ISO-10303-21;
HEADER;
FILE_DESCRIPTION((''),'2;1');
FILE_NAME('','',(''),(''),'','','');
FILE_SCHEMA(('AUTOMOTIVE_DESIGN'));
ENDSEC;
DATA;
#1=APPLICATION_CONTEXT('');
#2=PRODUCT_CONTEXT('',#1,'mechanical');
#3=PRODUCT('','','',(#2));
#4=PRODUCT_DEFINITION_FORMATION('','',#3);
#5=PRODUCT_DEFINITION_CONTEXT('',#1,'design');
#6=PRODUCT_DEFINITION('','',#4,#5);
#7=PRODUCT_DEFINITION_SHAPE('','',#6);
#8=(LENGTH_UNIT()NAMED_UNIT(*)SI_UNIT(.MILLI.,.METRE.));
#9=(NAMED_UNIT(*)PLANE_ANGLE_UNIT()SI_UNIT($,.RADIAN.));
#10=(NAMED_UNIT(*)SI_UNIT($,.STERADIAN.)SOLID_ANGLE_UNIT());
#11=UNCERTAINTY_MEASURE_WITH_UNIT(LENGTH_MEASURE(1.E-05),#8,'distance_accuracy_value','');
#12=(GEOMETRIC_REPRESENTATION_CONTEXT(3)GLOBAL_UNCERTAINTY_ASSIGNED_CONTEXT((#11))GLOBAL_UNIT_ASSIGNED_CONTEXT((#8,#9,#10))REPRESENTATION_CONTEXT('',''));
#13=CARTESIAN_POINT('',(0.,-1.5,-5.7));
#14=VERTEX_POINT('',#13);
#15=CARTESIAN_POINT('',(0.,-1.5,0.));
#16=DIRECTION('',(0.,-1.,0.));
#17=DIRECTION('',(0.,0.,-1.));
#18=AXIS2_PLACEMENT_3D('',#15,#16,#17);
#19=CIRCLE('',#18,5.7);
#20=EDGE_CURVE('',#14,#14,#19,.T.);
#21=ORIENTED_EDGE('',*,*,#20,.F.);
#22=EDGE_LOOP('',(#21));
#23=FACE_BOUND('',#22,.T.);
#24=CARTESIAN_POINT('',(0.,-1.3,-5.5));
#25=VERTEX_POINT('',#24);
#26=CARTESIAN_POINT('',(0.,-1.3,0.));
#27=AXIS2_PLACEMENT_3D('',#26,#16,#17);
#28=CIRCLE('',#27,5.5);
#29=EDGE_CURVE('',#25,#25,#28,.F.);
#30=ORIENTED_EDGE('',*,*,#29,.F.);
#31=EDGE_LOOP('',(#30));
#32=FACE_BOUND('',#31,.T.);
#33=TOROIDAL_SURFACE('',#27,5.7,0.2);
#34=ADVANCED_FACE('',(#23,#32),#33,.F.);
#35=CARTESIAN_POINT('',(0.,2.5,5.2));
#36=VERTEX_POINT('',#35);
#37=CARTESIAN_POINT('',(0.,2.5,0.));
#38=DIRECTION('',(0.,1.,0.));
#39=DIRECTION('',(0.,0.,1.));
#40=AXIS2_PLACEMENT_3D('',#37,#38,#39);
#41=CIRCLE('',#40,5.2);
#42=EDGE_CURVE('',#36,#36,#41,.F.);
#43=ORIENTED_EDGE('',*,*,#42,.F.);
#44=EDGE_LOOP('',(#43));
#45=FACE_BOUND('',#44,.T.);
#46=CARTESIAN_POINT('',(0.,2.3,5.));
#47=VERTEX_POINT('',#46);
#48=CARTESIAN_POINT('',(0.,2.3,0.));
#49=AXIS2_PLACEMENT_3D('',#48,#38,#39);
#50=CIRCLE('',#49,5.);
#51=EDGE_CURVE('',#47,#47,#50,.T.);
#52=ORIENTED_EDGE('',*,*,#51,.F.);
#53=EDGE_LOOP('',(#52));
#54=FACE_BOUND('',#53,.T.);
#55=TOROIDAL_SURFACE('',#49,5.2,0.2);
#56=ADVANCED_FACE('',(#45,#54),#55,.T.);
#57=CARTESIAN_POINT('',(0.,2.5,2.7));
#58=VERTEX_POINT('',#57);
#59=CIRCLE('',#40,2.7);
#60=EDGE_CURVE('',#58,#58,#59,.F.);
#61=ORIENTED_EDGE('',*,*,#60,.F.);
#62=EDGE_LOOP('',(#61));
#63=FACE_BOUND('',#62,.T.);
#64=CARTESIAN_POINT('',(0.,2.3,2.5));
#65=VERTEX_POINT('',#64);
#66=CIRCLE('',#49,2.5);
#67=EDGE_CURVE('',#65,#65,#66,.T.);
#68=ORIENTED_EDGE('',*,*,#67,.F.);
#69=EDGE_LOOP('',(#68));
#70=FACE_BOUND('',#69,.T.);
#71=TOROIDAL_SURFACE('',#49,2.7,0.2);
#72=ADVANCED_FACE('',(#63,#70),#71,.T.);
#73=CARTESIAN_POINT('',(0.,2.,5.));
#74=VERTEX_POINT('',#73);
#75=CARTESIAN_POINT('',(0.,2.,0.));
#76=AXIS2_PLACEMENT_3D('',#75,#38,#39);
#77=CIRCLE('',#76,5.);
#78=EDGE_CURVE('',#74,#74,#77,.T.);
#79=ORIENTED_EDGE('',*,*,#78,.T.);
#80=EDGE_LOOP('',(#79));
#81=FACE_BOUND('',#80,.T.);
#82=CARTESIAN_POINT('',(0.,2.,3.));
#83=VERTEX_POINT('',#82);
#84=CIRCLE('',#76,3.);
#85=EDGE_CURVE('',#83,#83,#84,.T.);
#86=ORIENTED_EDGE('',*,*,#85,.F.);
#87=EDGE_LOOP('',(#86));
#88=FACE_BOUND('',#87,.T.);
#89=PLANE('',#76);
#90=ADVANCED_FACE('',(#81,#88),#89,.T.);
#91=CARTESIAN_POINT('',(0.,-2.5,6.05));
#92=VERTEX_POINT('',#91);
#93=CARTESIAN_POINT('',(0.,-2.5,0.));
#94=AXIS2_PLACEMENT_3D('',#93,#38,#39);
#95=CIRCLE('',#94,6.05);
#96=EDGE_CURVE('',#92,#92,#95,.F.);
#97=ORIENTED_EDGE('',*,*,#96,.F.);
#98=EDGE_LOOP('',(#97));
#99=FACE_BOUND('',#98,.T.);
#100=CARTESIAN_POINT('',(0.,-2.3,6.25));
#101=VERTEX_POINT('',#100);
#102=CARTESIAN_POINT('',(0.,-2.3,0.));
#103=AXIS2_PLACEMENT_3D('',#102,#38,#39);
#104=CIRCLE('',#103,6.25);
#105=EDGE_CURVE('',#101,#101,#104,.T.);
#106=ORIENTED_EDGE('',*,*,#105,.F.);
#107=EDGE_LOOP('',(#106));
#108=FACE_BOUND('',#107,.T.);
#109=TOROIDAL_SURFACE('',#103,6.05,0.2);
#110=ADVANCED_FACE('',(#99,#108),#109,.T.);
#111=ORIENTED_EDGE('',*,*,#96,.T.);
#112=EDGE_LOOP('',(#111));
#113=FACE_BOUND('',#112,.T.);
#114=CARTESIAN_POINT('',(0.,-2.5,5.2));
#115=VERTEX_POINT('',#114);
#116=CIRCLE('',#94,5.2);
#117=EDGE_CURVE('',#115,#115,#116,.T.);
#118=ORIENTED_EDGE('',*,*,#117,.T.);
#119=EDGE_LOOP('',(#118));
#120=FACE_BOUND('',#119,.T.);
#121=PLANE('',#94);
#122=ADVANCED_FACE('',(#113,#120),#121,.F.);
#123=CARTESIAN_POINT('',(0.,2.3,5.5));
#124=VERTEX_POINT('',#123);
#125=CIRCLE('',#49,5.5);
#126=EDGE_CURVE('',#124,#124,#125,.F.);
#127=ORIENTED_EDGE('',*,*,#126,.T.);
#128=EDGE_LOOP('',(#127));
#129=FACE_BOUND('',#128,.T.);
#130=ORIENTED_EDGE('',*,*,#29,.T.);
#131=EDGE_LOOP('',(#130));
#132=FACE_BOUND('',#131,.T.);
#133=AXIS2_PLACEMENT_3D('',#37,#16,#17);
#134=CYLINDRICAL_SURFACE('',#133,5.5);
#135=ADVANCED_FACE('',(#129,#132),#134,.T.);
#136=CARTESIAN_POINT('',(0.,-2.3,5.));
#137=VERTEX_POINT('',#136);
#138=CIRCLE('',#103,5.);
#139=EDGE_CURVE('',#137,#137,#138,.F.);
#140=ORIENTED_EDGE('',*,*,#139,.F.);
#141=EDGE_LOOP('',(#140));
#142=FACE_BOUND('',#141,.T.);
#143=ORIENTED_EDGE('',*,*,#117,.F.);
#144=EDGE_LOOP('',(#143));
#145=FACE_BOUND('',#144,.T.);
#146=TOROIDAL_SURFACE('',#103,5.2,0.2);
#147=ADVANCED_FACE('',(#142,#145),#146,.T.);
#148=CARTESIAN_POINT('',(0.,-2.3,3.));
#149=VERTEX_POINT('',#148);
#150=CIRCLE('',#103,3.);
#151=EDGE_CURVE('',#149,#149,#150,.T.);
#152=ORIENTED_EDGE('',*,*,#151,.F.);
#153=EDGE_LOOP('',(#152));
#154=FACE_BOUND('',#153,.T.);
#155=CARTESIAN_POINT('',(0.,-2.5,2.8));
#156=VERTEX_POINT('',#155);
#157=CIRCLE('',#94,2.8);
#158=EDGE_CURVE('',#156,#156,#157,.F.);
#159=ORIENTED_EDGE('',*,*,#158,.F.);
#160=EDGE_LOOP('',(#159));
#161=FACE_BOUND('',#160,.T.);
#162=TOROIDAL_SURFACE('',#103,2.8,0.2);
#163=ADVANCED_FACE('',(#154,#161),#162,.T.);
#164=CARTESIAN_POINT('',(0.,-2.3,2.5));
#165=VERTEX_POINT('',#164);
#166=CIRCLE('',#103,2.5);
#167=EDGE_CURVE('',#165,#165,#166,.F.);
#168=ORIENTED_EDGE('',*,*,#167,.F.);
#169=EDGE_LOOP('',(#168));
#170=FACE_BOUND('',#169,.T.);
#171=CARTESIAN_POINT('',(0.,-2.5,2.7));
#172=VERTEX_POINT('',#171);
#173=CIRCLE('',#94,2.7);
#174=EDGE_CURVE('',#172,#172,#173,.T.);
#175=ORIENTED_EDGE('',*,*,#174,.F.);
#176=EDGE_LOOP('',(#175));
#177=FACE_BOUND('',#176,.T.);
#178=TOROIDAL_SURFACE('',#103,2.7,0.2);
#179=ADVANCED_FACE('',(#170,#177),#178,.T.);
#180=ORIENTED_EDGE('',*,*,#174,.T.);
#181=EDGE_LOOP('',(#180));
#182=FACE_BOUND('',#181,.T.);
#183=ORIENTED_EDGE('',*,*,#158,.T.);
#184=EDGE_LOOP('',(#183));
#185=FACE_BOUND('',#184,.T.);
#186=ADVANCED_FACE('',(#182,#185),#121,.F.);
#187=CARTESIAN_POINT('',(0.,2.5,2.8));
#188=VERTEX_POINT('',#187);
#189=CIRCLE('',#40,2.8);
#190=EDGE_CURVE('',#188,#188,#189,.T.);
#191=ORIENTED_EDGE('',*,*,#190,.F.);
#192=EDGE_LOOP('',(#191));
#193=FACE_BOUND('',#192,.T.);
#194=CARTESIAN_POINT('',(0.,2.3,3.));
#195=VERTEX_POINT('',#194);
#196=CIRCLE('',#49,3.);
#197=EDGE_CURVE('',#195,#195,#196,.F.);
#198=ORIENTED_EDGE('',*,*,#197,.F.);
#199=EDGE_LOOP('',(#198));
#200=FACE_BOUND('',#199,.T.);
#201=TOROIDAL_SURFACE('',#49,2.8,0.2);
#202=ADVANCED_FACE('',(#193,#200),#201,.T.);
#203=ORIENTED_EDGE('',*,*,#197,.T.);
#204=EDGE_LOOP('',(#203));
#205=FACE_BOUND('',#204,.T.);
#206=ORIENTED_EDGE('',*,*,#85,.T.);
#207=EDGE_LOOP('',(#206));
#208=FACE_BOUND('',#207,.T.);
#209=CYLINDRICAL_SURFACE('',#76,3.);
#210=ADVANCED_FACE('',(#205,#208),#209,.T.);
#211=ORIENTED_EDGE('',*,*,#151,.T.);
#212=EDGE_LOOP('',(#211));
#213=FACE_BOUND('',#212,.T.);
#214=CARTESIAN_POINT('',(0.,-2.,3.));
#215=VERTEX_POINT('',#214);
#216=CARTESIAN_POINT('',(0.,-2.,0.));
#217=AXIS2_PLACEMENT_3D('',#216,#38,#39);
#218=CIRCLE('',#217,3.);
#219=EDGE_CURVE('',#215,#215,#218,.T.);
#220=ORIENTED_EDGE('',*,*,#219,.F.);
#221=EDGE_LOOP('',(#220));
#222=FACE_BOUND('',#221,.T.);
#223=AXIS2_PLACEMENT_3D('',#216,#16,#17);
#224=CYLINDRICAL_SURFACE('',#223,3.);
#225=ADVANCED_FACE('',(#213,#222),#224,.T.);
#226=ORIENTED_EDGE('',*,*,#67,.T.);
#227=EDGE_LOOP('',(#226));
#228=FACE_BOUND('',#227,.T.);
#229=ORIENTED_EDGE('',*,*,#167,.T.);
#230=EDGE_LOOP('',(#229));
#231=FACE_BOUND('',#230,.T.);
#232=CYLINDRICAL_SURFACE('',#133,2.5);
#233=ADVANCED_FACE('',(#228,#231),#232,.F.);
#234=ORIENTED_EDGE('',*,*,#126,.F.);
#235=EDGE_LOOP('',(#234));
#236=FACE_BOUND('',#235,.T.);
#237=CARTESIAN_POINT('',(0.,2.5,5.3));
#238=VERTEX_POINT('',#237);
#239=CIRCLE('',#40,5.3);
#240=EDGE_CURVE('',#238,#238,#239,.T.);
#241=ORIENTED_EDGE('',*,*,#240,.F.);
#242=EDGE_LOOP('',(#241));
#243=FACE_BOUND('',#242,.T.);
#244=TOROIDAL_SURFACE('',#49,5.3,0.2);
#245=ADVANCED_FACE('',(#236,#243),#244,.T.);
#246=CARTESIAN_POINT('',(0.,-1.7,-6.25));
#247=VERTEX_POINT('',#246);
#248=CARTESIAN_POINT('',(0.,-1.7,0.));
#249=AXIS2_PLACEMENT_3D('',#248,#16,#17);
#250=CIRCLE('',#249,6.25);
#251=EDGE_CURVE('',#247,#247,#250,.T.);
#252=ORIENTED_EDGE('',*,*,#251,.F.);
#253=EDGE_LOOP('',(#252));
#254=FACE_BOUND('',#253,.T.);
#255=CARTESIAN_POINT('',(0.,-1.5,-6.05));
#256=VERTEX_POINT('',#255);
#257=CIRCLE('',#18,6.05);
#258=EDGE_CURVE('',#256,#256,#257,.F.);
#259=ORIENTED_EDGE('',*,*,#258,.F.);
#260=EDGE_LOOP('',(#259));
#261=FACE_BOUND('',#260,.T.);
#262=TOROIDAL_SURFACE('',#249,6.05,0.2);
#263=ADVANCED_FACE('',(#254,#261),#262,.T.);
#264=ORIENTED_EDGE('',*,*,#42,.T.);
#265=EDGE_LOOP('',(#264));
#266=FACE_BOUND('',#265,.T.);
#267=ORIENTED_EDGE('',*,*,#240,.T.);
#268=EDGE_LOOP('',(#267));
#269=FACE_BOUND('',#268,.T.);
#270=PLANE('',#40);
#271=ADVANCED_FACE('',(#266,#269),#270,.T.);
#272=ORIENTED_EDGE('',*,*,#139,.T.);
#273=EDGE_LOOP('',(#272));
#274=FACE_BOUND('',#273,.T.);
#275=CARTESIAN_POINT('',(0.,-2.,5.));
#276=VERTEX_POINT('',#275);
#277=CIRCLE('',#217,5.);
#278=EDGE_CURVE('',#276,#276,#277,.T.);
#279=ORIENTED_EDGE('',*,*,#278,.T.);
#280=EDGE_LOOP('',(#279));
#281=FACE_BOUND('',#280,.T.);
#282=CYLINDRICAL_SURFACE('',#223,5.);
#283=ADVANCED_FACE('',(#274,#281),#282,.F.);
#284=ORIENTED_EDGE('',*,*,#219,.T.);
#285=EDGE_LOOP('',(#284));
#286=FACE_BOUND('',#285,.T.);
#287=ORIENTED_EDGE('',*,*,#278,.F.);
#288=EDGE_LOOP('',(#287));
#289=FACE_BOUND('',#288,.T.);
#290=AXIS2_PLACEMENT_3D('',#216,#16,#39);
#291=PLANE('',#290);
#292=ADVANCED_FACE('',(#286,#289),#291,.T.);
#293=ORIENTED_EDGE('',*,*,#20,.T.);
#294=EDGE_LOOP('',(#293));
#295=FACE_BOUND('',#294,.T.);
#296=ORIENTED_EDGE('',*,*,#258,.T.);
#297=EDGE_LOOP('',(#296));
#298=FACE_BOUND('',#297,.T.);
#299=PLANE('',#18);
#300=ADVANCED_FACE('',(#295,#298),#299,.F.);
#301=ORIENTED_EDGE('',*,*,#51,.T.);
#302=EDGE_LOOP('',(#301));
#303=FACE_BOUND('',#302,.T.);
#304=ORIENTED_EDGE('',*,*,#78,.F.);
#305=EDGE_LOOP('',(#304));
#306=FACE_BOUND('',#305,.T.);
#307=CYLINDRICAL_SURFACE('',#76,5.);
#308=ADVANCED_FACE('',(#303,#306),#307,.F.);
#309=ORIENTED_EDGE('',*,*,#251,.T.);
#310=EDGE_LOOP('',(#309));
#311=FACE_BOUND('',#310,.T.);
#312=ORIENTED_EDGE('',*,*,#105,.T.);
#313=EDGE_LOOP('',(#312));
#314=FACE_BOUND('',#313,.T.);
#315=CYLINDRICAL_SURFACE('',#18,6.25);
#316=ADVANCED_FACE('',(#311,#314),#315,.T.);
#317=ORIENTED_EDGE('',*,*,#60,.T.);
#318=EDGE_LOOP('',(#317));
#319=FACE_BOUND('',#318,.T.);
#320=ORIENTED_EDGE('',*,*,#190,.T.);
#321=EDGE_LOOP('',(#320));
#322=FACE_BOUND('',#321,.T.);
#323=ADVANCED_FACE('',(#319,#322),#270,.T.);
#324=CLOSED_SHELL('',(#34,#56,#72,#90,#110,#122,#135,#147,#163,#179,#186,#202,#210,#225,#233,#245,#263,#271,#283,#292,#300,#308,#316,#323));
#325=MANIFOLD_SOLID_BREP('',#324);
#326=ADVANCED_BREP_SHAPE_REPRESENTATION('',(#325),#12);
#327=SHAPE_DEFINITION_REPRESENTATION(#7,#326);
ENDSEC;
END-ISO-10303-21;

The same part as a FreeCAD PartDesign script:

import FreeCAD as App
import Part
import Sketcher
from FreeCAD import Vector


def edges_at(feature, points):
    """Names of the edges that pass closest to the given points."""
    edges = feature.Shape.Edges
    near = lambda p: min(range(len(edges)), key=lambda i: edges[i].distToShape(Part.Vertex(*p))[0])
    return sorted({f"Edge{near(p) + 1}" for p in points})

doc = App.newDocument("Part")
params = doc.addObject("Spreadsheet::Sheet", "Params")
for row, (alias, value) in enumerate([
    ("sketch1_diameter", "11 mm"),
    ("sketch1_diameter2", "5 mm"),
    ("pad1_length", "5 mm"),
    ("sketch2_diameter", "11 mm"),
    ("sketch2_diameter2", "12.5 mm"),
    ("pad2_length", "1 mm"),
    ("sketch3_diameter", "10 mm"),
    ("sketch3_diameter2", "6 mm"),
    ("pocket1_length", "1 mm"),
    ("fillet_radius", "0.2 mm"),
    ("fillet2_radius", "0.2 mm"),
], start=1):
    params.set(f"A{row}", alias)
    params.set(f"B{row}", "=" + value)
    params.setAlias(f"B{row}", alias)

body = doc.addObject("PartDesign::Body", "Body")

# Sketch on XZ plane
sketch1 = body.newObject("Sketcher::SketchObject", "Sketch")
sketch1.AttachmentSupport = (doc.getObject("XZ_Plane"), [""])
sketch1.MapMode = "FlatFace"
sketch1.addGeometry([
    Part.Circle(Vector(0, 0, 0), Vector(0, 0, 1), 5.5),
    Part.Circle(Vector(0, 0, 0), Vector(0, 0, 1), 2.5),
], False)
sketch1.addConstraint([
    Sketcher.Constraint("Coincident", 0, 3, -1, 1),
    Sketcher.Constraint("Coincident", 1, 3, -1, 1),
    Sketcher.Constraint("Diameter", 0, 11.0),
    Sketcher.Constraint("Diameter", 1, 5.0),
])
sketch1.setExpression("Constraints[2]", "Params.sketch1_diameter")
sketch1.setExpression("Constraints[3]", "Params.sketch1_diameter2")
pad1 = body.newObject("PartDesign::Pad", "Pad")
pad1.Profile = sketch1
pad1.setExpression("Length", "Params.pad1_length")
pad1.Midplane = True

# Sketch on XZ plane
sketch2 = body.newObject("Sketcher::SketchObject", "Sketch001")
sketch2.AttachmentSupport = (doc.getObject("XZ_Plane"), [""])
sketch2.MapMode = "FlatFace"
sketch2.AttachmentOffset = App.Placement(Vector(0, 0, 1.5), App.Rotation())
sketch2.addGeometry([
    Part.Circle(Vector(0, 0, 0), Vector(0, 0, 1), 6),
    Part.Circle(Vector(0, 0, 0), Vector(0, 0, 1), 6),
], False)
sketch2.addConstraint([
    Sketcher.Constraint("Coincident", 0, 3, -1, 1),
    Sketcher.Constraint("Coincident", 1, 3, -1, 1),
    Sketcher.Constraint("Diameter", 1, 11.0),
    Sketcher.Constraint("Diameter", 0, 12.5),
])
sketch2.setExpression("Constraints[2]", "Params.sketch2_diameter")
sketch2.setExpression("Constraints[3]", "Params.sketch2_diameter2")
pad2 = body.newObject("PartDesign::Pad", "Pad001")
pad2.Profile = sketch2
pad2.setExpression("Length", "Params.pad2_length")

# Sketch on XZ plane
sketch3 = body.newObject("Sketcher::SketchObject", "Sketch002")
sketch3.AttachmentSupport = (doc.getObject("XZ_Plane"), [""])
sketch3.MapMode = "FlatFace"
sketch3.AttachmentOffset = App.Placement(Vector(0, 0, -2.5), App.Rotation())
sketch3.addGeometry([
    Part.Circle(Vector(0, 0, 0), Vector(0, 0, 1), 5),
    Part.Circle(Vector(0, 0, 0), Vector(0, 0, 1), 3),
], False)
sketch3.addConstraint([
    Sketcher.Constraint("Coincident", 0, 3, -1, 1),
    Sketcher.Constraint("Coincident", 1, 3, -1, 1),
    Sketcher.Constraint("Diameter", 0, 10.0),
    Sketcher.Constraint("Diameter", 1, 6.0),
])
sketch3.setExpression("Constraints[2]", "Params.sketch3_diameter")
sketch3.setExpression("Constraints[3]", "Params.sketch3_diameter2")
pocket1 = body.newObject("PartDesign::Pocket", "Pocket")
pocket1.Profile = sketch3
pocket1.setExpression("Length", "Params.pocket1_length")
pocket1.Midplane = True
doc.recompute()

mirrored = body.newObject("PartDesign::Mirrored", "Mirrored")
mirrored.Originals = [pocket1]
mirrored.MirrorPlane = (doc.getObject("XZ_Plane"), [""])
body.Tip = mirrored
doc.recompute()

fillet = body.newObject("PartDesign::Fillet", "Fillet")
fillet.Base = (mirrored, edges_at(mirrored, [
    (-6.25, -2.5, 0),
    (0, 2.5, -5),
    (0, 2.5, -3),
    (0, -2.5, -3),
    (0, -2.5, -5),
    (0, 2.5, -5.5),
    (0, -2.5, -2.5),
    (0, 2.5, -2.5),
    (0, -1.5, -5.5),
]))
fillet.setExpression("Radius", "Params.fillet_radius")
doc.recompute()

fillet2 = body.newObject("PartDesign::Fillet", "Fillet001")
fillet2.Base = (fillet, edges_at(fillet, [(-6.25, -1.5, 0)]))
fillet2.setExpression("Radius", "Params.fillet2_radius")

doc.recompute()
